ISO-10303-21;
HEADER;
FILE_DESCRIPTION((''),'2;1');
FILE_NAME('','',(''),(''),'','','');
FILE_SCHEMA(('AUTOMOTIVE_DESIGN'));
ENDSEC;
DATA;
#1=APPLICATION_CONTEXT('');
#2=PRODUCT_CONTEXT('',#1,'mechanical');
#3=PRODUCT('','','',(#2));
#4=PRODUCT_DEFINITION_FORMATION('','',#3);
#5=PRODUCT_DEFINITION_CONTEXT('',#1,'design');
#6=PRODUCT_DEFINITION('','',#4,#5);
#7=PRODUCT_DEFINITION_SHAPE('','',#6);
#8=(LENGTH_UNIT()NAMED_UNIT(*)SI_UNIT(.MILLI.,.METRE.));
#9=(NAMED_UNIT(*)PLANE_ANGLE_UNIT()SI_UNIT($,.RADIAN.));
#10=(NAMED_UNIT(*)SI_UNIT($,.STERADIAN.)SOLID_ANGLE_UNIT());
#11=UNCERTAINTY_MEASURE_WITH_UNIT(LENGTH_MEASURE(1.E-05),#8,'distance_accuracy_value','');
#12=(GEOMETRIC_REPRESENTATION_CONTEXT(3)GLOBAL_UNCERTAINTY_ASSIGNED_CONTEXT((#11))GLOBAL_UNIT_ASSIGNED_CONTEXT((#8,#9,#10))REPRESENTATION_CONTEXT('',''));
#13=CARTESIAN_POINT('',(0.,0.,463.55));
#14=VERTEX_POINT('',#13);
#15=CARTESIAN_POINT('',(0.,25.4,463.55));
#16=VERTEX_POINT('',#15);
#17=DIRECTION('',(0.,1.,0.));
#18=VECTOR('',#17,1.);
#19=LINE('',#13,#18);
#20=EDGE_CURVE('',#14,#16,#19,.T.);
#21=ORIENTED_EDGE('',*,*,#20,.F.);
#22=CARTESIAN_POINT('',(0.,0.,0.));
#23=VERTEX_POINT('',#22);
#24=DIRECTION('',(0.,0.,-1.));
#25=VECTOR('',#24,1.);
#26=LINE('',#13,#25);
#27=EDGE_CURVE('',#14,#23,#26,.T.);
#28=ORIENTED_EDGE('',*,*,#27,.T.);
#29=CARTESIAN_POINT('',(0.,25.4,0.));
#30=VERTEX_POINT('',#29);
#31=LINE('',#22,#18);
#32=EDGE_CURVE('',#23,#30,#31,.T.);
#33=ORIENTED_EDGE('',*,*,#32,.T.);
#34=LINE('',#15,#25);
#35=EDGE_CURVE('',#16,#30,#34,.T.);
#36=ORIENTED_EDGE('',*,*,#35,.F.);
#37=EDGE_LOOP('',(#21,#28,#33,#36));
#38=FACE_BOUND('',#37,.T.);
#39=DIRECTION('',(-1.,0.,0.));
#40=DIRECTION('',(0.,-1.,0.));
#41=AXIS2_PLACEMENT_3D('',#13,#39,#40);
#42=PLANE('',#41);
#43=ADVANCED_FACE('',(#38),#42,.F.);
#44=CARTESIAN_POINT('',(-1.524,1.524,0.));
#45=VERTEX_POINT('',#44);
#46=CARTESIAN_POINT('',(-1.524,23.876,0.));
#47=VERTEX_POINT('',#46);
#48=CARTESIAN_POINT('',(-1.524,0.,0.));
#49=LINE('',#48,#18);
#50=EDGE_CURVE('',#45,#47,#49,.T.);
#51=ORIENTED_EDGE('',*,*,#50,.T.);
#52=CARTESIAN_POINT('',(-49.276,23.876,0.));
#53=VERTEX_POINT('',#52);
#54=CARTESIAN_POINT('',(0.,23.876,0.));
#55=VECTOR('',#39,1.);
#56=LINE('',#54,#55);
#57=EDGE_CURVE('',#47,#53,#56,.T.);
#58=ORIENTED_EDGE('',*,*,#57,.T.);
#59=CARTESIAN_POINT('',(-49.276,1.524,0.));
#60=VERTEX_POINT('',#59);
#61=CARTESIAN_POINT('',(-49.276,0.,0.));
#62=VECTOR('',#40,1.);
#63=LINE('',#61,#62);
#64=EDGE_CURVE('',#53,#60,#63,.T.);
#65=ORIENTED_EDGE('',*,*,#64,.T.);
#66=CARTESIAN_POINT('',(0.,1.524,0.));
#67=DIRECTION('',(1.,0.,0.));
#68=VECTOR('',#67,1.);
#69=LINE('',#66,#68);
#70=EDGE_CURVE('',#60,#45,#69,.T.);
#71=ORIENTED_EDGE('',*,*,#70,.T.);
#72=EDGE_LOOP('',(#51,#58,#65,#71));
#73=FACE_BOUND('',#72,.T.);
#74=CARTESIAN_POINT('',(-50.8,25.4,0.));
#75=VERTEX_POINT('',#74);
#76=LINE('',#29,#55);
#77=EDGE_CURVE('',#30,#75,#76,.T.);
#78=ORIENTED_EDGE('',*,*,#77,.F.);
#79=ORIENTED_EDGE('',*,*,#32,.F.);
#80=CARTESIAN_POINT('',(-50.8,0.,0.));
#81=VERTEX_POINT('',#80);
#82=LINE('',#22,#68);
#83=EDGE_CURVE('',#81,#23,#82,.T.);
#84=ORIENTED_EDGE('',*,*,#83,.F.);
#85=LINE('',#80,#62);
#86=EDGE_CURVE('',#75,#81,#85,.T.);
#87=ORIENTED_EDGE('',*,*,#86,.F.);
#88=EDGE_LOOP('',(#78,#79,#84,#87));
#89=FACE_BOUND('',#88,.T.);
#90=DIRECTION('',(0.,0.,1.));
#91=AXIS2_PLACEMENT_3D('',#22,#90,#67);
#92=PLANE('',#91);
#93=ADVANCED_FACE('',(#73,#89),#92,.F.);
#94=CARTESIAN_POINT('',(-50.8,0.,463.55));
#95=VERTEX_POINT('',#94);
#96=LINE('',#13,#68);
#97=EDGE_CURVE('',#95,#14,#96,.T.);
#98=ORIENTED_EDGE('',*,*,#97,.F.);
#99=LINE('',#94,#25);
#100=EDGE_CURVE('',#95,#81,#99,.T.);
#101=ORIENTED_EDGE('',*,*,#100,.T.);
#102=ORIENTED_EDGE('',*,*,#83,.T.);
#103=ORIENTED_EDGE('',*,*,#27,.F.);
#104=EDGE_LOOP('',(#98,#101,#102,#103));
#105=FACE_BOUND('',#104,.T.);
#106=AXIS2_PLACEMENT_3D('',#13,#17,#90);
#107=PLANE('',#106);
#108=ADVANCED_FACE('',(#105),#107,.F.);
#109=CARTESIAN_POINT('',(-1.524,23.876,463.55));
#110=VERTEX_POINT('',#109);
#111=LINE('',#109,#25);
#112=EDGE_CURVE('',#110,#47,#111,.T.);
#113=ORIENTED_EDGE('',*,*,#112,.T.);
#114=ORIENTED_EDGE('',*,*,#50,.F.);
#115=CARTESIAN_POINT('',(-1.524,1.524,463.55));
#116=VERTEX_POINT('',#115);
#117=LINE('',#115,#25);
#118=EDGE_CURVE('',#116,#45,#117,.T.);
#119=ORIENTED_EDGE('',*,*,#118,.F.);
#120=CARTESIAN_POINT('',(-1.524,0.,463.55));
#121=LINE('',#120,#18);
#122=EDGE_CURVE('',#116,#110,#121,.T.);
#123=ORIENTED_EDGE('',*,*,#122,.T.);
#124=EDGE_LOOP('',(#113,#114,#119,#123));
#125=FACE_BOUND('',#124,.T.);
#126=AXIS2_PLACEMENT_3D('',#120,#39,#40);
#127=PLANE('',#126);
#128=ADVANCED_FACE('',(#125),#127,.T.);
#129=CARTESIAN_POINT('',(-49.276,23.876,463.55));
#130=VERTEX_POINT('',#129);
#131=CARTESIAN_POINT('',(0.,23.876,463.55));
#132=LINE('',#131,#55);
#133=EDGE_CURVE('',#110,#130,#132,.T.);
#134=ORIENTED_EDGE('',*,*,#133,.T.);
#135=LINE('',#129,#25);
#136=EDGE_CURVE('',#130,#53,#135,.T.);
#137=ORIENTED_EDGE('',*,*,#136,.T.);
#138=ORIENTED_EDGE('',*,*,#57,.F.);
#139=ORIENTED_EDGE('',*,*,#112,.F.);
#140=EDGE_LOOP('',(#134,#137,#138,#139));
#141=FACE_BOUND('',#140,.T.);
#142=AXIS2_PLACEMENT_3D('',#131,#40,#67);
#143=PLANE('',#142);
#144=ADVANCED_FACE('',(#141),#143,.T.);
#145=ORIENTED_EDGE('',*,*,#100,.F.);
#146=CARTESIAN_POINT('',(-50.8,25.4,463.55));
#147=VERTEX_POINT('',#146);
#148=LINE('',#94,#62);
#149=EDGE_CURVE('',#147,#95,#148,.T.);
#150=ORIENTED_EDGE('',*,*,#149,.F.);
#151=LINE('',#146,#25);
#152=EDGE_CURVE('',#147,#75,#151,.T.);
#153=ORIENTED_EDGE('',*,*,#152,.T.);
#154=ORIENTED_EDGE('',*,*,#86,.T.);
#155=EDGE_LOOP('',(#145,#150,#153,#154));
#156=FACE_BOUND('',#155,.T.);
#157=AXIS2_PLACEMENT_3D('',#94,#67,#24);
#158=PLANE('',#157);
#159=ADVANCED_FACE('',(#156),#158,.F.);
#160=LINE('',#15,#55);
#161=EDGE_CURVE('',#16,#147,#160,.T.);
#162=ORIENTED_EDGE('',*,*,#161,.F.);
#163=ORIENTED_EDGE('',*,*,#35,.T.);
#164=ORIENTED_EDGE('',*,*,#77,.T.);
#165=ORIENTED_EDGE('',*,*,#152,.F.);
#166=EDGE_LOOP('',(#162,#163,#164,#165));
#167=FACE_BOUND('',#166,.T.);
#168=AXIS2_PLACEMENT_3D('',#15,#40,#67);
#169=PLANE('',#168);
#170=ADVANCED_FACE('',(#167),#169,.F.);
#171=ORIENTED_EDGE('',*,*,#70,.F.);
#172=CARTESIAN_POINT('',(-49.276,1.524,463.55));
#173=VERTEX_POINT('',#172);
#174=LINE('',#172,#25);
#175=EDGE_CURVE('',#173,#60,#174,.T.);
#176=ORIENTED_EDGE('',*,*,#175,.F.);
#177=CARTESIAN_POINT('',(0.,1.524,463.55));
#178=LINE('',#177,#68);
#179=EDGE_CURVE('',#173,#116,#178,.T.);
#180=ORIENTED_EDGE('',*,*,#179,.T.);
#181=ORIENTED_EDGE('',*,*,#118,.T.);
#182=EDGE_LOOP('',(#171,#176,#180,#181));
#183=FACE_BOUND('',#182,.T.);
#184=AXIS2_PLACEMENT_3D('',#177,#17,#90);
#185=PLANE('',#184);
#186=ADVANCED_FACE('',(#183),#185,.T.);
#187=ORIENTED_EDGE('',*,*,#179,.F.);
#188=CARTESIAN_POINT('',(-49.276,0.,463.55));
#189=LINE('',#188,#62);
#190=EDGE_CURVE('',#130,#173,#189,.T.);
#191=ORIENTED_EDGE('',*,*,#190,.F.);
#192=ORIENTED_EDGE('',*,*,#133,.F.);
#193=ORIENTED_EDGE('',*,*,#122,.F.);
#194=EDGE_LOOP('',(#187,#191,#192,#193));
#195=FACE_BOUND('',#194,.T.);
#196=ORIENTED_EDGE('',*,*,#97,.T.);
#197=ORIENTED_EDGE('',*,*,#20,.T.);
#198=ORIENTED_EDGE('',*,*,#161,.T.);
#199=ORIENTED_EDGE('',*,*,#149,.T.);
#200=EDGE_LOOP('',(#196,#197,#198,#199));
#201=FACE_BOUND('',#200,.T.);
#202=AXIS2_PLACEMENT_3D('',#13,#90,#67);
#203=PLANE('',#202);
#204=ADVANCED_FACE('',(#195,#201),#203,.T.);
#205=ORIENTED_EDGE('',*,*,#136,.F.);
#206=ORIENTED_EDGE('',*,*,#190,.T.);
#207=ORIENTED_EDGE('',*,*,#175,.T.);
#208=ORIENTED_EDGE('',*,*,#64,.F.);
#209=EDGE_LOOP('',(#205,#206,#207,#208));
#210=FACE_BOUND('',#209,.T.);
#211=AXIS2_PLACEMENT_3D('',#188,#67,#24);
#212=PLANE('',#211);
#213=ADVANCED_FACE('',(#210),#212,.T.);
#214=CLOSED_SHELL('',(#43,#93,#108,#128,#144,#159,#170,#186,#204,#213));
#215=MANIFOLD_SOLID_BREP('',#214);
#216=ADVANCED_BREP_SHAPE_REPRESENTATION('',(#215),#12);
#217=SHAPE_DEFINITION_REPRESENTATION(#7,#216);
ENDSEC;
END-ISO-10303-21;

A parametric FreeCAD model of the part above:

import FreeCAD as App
import Part
import Sketcher
Q = App.Units.Quantity

doc = App.newDocument("Part")
params = doc.addObject("Spreadsheet::Sheet", "Params")
for row, (alias, value) in enumerate([
    ("sketch1_width", "2 in"),
    ("sketch1_height", "1 in"),
    ("sketch1_width2", "1.88 in"),
    ("sketch1_height2", "0.88 in"),
    ("pad1_length", "18.25 in"),
], start=1):
    params.set(f"A{row}", alias)
    params.set(f"B{row}", "=" + value)
    params.setAlias(f"B{row}", alias)

body = doc.addObject("PartDesign::Body", "Body")

sketch1 = body.newObject("Sketcher::SketchObject", "Sketch")
sketch1.AttachmentSupport = (doc.getObject("XY_Plane"), [""])
sketch1.MapMode = "FlatFace"
sketch1.addGeometry(Part.LineSegment(App.Vector(-51, 25, 0), App.Vector(-51, 0, 0)), False)
sketch1.addGeometry(Part.LineSegment(App.Vector(-51, 0, 0), App.Vector(0, 0, 0)), False)
sketch1.addGeometry(Part.LineSegment(App.Vector(0, 0, 0), App.Vector(0, 25, 0)), False)
sketch1.addGeometry(Part.LineSegment(App.Vector(0, 25, 0), App.Vector(-51, 25, 0)), False)
sketch1.addGeometry(Part.LineSegment(App.Vector(-2, 2, 0), App.Vector(-49, 2, 0)), False)
sketch1.addGeometry(Part.LineSegment(App.Vector(-49, 2, 0), App.Vector(-49, 24, 0)), False)
sketch1.addGeometry(Part.LineSegment(App.Vector(-49, 24, 0), App.Vector(-2, 24, 0)), False)
sketch1.addGeometry(Part.LineSegment(App.Vector(-2, 24, 0), App.Vector(-2, 2, 0)), False)
sketch1.addConstraint(Sketcher.Constraint("Coincident", 0, 2, 1, 1))
sketch1.addConstraint(Sketcher.Constraint("Coincident", 1, 2, 2, 1))
sketch1.addConstraint(Sketcher.Constraint("Coincident", 2, 2, 3, 1))
sketch1.addConstraint(Sketcher.Constraint("Coincident", 3, 2, 0, 1))
sketch1.addConstraint(Sketcher.Constraint("Coincident", 4, 2, 5, 1))
sketch1.addConstraint(Sketcher.Constraint("Coincident", 5, 2, 6, 1))
sketch1.addConstraint(Sketcher.Constraint("Coincident", 6, 2, 7, 1))
sketch1.addConstraint(Sketcher.Constraint("Coincident", 7, 2, 4, 1))
sketch1.addConstraint(Sketcher.Constraint("Vertical", 0))
sketch1.addConstraint(Sketcher.Constraint("Horizontal", 1))
sketch1.addConstraint(Sketcher.Constraint("Vertical", 2))
sketch1.addConstraint(Sketcher.Constraint("Horizontal", 3))
sketch1.addConstraint(Sketcher.Constraint("Horizontal", 4))
sketch1.addConstraint(Sketcher.Constraint("Vertical", 5))
sketch1.addConstraint(Sketcher.Constraint("Horizontal", 6))
sketch1.addConstraint(Sketcher.Constraint("Vertical", 7))
sketch1.addConstraint(Sketcher.Constraint("Coincident", 1, 2, -1, 1))
sketch1.addConstraint(Sketcher.Constraint("DistanceX", 1, 1, 1, 2, Q("2 in")))
sketch1.addConstraint(Sketcher.Constraint("DistanceY", 0, 2, 0, 1, Q("1 in")))
sketch1.addConstraint(Sketcher.Constraint("DistanceX", 4, 2, 4, 1, Q("1.88 in")))
sketch1.addConstraint(Sketcher.Constraint("DistanceY", 5, 1, 5, 2, Q("0.88 in")))
sketch1.addConstraint(Sketcher.Constraint("DistanceX", 4, 2, -1, 1, Q("1.94 in")))
sketch1.addConstraint(Sketcher.Constraint("DistanceY", -1, 1, 4, 2, Q("0.06 in")))
sketch1.setExpression("Constraints[17]", "Params.sketch1_width")
sketch1.setExpression("Constraints[18]", "Params.sketch1_height")
sketch1.setExpression("Constraints[19]", "Params.sketch1_width2")
sketch1.setExpression("Constraints[20]", "Params.sketch1_height2")
pad1 = body.newObject("PartDesign::Pad", "Pad")
pad1.Profile = sketch1
pad1.setExpression("Length", "Params.pad1_length")

doc.recompute()
